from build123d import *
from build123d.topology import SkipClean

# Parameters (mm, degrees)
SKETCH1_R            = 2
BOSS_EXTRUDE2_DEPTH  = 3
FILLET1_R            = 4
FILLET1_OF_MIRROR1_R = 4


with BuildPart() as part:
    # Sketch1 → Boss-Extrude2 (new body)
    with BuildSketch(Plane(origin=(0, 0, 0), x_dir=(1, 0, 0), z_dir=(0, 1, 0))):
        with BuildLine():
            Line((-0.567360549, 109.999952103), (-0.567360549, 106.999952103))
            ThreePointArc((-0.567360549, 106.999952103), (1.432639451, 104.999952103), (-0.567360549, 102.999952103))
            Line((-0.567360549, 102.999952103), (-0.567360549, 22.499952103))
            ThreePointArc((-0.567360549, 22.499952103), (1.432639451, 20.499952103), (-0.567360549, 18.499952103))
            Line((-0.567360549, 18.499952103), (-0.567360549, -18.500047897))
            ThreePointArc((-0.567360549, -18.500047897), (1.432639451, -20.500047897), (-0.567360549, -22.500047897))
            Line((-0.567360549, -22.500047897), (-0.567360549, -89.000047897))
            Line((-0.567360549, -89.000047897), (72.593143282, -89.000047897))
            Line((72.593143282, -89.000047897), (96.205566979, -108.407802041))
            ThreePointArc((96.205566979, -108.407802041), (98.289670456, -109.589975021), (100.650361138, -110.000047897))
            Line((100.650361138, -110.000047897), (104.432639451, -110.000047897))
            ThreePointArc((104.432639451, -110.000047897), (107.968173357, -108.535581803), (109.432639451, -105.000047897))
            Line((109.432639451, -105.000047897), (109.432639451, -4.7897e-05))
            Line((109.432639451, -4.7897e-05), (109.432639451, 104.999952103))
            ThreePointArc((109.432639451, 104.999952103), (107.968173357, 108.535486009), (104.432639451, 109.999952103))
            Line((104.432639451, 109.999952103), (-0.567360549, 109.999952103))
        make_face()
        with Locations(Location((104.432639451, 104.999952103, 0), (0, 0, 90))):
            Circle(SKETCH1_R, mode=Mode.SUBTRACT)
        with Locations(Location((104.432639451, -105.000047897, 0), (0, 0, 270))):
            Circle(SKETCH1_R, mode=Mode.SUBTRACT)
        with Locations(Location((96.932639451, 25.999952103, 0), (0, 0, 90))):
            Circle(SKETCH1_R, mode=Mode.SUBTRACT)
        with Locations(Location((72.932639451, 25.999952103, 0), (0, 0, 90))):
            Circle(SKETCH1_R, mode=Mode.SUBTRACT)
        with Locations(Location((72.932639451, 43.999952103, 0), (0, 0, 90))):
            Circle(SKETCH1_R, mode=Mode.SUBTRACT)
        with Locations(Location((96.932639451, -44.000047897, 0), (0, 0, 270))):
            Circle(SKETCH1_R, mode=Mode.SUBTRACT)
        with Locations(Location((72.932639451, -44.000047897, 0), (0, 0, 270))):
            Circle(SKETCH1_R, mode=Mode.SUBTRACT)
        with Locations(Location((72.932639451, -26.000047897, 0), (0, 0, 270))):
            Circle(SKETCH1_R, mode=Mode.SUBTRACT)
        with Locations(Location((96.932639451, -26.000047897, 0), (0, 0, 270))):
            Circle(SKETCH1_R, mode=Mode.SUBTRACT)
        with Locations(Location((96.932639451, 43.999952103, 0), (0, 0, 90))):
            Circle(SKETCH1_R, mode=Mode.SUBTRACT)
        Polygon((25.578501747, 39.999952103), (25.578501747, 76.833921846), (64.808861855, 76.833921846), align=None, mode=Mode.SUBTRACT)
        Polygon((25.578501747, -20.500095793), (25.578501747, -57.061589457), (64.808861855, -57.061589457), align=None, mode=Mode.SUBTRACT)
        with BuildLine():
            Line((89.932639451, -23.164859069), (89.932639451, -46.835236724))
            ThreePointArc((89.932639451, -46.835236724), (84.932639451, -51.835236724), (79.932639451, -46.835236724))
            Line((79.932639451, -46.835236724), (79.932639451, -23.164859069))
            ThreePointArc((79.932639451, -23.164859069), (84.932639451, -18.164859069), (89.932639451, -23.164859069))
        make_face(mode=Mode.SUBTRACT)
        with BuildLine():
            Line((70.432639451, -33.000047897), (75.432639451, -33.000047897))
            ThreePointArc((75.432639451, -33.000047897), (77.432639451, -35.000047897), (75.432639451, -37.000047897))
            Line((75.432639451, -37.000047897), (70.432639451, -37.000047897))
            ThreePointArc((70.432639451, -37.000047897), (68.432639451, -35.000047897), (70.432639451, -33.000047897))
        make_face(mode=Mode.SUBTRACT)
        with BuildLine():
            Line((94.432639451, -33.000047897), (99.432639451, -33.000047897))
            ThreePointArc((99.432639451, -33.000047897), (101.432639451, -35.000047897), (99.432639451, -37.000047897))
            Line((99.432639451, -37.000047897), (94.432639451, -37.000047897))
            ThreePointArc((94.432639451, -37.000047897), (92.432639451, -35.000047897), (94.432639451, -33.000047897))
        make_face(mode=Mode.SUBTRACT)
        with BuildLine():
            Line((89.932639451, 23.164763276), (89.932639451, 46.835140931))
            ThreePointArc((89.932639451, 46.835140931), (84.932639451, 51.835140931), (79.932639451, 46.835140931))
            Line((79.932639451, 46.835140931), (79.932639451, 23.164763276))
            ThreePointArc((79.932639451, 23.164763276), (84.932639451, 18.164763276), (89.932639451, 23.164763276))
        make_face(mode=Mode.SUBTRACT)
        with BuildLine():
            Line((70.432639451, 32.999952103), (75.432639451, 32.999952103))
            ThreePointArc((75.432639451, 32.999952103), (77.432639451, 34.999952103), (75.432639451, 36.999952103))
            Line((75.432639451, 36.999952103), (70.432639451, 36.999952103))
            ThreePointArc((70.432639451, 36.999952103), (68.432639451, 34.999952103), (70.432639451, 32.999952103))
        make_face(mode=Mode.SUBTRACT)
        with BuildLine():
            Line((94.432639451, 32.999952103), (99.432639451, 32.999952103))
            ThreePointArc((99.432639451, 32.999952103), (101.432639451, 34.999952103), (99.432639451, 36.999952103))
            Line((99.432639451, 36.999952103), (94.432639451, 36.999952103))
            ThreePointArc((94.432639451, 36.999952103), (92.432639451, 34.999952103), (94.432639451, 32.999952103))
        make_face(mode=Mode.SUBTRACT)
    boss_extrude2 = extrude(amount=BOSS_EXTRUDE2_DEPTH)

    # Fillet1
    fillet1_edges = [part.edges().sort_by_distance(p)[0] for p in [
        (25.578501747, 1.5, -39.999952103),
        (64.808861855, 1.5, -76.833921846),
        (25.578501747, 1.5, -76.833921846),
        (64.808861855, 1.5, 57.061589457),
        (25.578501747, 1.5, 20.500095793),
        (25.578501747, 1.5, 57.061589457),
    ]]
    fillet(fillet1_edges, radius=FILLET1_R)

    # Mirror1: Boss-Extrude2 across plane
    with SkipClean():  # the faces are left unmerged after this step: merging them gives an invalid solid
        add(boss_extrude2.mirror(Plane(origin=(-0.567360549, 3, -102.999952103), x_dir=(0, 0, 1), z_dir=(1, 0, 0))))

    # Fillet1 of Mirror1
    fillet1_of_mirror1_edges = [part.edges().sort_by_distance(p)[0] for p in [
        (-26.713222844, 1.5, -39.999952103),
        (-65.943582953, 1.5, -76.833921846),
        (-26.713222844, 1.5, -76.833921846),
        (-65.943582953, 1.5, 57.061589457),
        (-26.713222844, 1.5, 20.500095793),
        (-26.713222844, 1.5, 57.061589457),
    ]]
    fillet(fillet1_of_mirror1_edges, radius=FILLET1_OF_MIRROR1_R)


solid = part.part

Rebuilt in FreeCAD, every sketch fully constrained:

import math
import FreeCAD as App
import Part
import Sketcher

V = App.Vector
Q = App.Units.Quantity


def edges_at(feature, points):
    """Names of the edges that pass closest to the given points."""
    edges = feature.Shape.Edges
    near = lambda p: min(range(len(edges)), key=lambda i: edges[i].distToShape(Part.Vertex(*p))[0])
    return sorted({f"Edge{near(p) + 1}" for p in points})

doc = App.newDocument("Part")
body = doc.addObject("PartDesign::Body", "Body")

# Sketch on XZ plane
sketch1 = doc.addObject("Sketcher::SketchObject", "Sketch")
body.addObject(sketch1)
sketch1.AttachmentSupport = (doc.XZ_Plane, [""])
sketch1.MapMode = "FlatFace"
sketch1.addGeometry(Part.LineSegment(V(-0.567361, -109.999952, 0), V(-0.567361, -106.999952, 0)), False)
sketch1.addGeometry(Part.ArcOfCircle(Part.Circle(V(-0.567361, -104.999952, 0), V(0, 0, 1), 2), math.radians(-90), math.radians(90)), False)
sketch1.addGeometry(Part.LineSegment(V(-0.567361, -102.999952, 0), V(-0.567361, -22.499952, 0)), False)
sketch1.addGeometry(Part.ArcOfCircle(Part.Circle(V(-0.567361, -20.499952, 0), V(0, 0, 1), 2), math.radians(-90), math.radians(90)), False)
sketch1.addGeometry(Part.LineSegment(V(-0.567361, -18.499952, 0), V(-0.567361, 18.500048, 0)), False)
sketch1.addGeometry(Part.ArcOfCircle(Part.Circle(V(-0.567361, 20.500048, 0), V(0, 0, 1), 2), math.radians(-90), math.radians(90)), False)
sketch1.addGeometry(Part.LineSegment(V(-0.567361, 22.500048, 0), V(-0.567361, 89.000048, 0)), False)
sketch1.addGeometry(Part.LineSegment(V(-0.567361, 89.000048, 0), V(72.593143, 89.000048, 0)), False)
sketch1.addGeometry(Part.LineSegment(V(72.593143, 89.000048, 0), V(96.205567, 108.407802, 0)), False)
sketch1.addGeometry(Part.ArcOfCircle(Part.Circle(V(100.650361, 103.000048, 0), V(0, 0, 1), 7), math.radians(90), math.radians(129.417804)), False)
sketch1.addGeometry(Part.LineSegment(V(100.650361, 110.000048, 0), V(104.432639, 110.000048, 0)), False)
sketch1.addGeometry(Part.ArcOfCircle(Part.Circle(V(104.432639, 105.000048, 0), V(0, 0, 1), 5), math.radians(0), math.radians(90)), False)
sketch1.addGeometry(Part.LineSegment(V(109.432639, 105.000048, 0), V(109.432639, -104.999952, 0)), False)
sketch1.addGeometry(Part.ArcOfCircle(Part.Circle(V(104.432639, -104.999952, 0), V(0, 0, 1), 5), math.radians(-90), math.radians(0)), False)
sketch1.addGeometry(Part.LineSegment(V(104.432639, -109.999952, 0), V(-0.567361, -109.999952, 0)), False)
sketch1.addGeometry(Part.LineSegment(V(25.578502, 57.061589, 0), V(25.578502, 20.500096, 0)), False)
sketch1.addGeometry(Part.LineSegment(V(25.578502, 20.500096, 0), V(64.808862, 57.061589, 0)), False)
sketch1.addGeometry(Part.LineSegment(V(64.808862, 57.061589, 0), V(25.578502, 57.061589, 0)), False)
sketch1.addGeometry(Part.Circle(V(104.432639, 105.000048, 0), V(0, 0, 1), 2), False)
sketch1.addGeometry(Part.Circle(V(72.932639, 44.000048, 0), V(0, 0, 1), 2), False)
sketch1.addGeometry(Part.ArcOfCircle(Part.Circle(V(70.432639, 35.000048, 0), V(0, 0, 1), 2), math.radians(90), math.radians(270)), False)
sketch1.addGeometry(Part.LineSegment(V(70.432639, 33.000048, 0), V(75.432639, 33.000048, 0)), False)
sketch1.addGeometry(Part.ArcOfCircle(Part.Circle(V(75.432639, 35.000048, 0), V(0, 0, 1), 2), math.radians(-90), math.radians(90)), False)
sketch1.addGeometry(Part.LineSegment(V(75.432639, 37.000048, 0), V(70.432639, 37.000048, 0)), False)
sketch1.addGeometry(Part.ArcOfCircle(Part.Circle(V(84.932639, 23.164859, 0), V(0, 0, 1), 5), math.radians(180), math.radians(360)), False)
sketch1.addGeometry(Part.LineSegment(V(89.932639, 23.164859, 0), V(89.932639, 46.835237, 0)), False)
sketch1.addGeometry(Part.ArcOfCircle(Part.Circle(V(84.932639, 46.835237, 0), V(0, 0, 1), 5), math.radians(0), math.radians(180)), False)
sketch1.addGeometry(Part.LineSegment(V(79.932639, 46.835237, 0), V(79.932639, 23.164859, 0)), False)
sketch1.addGeometry(Part.Circle(V(72.932639, 26.000048, 0), V(0, 0, 1), 2), False)
sketch1.addGeometry(Part.Circle(V(96.932639, 44.000048, 0), V(0, 0, 1), 2), False)
sketch1.addGeometry(Part.ArcOfCircle(Part.Circle(V(94.432639, 35.000048, 0), V(0, 0, 1), 2), math.radians(90), math.radians(270)), False)
sketch1.addGeometry(Part.LineSegment(V(94.432639, 33.000048, 0), V(99.432639, 33.000048, 0)), False)
sketch1.addGeometry(Part.ArcOfCircle(Part.Circle(V(99.432639, 35.000048, 0), V(0, 0, 1), 2), math.radians(-90), math.radians(90)), False)
sketch1.addGeometry(Part.LineSegment(V(99.432639, 37.000048, 0), V(94.432639, 37.000048, 0)), False)
sketch1.addGeometry(Part.Circle(V(96.932639, 26.000048, 0), V(0, 0, 1), 2), False)
sketch1.addGeometry(Part.LineSegment(V(64.808862, -76.833922, 0), V(25.578502, -39.999952, 0)), False)
sketch1.addGeometry(Part.LineSegment(V(25.578502, -39.999952, 0), V(25.578502, -76.833922, 0)), False)
sketch1.addGeometry(Part.LineSegment(V(25.578502, -76.833922, 0), V(64.808862, -76.833922, 0)), False)
sketch1.addGeometry(Part.Circle(V(72.932639, -25.999952, 0), V(0, 0, 1), 2), False)
sketch1.addGeometry(Part.LineSegment(V(75.432639, -32.999952, 0), V(70.432639, -32.999952, 0)), False)
sketch1.addGeometry(Part.ArcOfCircle(Part.Circle(V(70.432639, -34.999952, 0), V(0, 0, 1), 2), math.radians(90), math.radians(270)), False)
sketch1.addGeometry(Part.LineSegment(V(70.432639, -36.999952, 0), V(75.432639, -36.999952, 0)), False)
sketch1.addGeometry(Part.ArcOfCircle(Part.Circle(V(75.432639, -34.999952, 0), V(0, 0, 1), 2), math.radians(-90), math.radians(90)), False)
sketch1.addGeometry(Part.Circle(V(72.932639, -43.999952, 0), V(0, 0, 1), 2), False)
sketch1.addGeometry(Part.LineSegment(V(89.932639, -46.835141, 0), V(89.932639, -23.164763, 0)), False)
sketch1.addGeometry(Part.ArcOfCircle(Part.Circle(V(84.932639, -23.164763, 0), V(0, 0, 1), 5), math.radians(0), math.radians(180)), False)
sketch1.addGeometry(Part.LineSegment(V(79.932639, -23.164763, 0), V(79.932639, -46.835141, 0)), False)
sketch1.addGeometry(Part.ArcOfCircle(Part.Circle(V(84.932639, -46.835141, 0), V(0, 0, 1), 5), math.radians(180), math.radians(360)), False)
sketch1.addGeometry(Part.Circle(V(96.932639, -25.999952, 0), V(0, 0, 1), 2), False)
sketch1.addGeometry(Part.LineSegment(V(99.432639, -32.999952, 0), V(94.432639, -32.999952, 0)), False)
sketch1.addGeometry(Part.ArcOfCircle(Part.Circle(V(94.432639, -34.999952, 0), V(0, 0, 1), 2), math.radians(90), math.radians(270)), False)
sketch1.addGeometry(Part.LineSegment(V(94.432639, -36.999952, 0), V(99.432639, -36.999952, 0)), False)
sketch1.addGeometry(Part.ArcOfCircle(Part.Circle(V(99.432639, -34.999952, 0), V(0, 0, 1), 2), math.radians(-90), math.radians(90)), False)
sketch1.addGeometry(Part.Circle(V(96.932639, -43.999952, 0), V(0, 0, 1), 2), False)
sketch1.addGeometry(Part.Circle(V(104.432639, -104.999952, 0), V(0, 0, 1), 2), False)
sketch1.addConstraint(Sketcher.Constraint("Coincident", 0, 2, 1, 1))
sketch1.addConstraint(Sketcher.Constraint("Coincident", 1, 2, 2, 1))
sketch1.addConstraint(Sketcher.Constraint("Coincident", 2, 2, 3, 1))
sketch1.addConstraint(Sketcher.Constraint("Coincident", 3, 2, 4, 1))
sketch1.addConstraint(Sketcher.Constraint("Coincident", 4, 2, 5, 1))
sketch1.addConstraint(Sketcher.Constraint("Coincident", 5, 2, 6, 1))
sketch1.addConstraint(Sketcher.Constraint("Coincident", 6, 2, 7, 1))
sketch1.addConstraint(Sketcher.Constraint("Coincident", 7, 2, 8, 1))
sketch1.addConstraint(Sketcher.Constraint("Tangent", 8, 2, 9, 2))
sketch1.addConstraint(Sketcher.Constraint("Tangent", 9, 1, 10, 1))
sketch1.addConstraint(Sketcher.Constraint("Tangent", 10, 2, 11, 2))
sketch1.addConstraint(Sketcher.Constraint("Tangent", 11, 1, 12, 1))
sketch1.addConstraint(Sketcher.Constraint("Tangent", 12, 2, 13, 2))
sketch1.addConstraint(Sketcher.Constraint("Tangent", 13, 1, 14, 1))
sketch1.addConstraint(Sketcher.Constraint("Coincident", 14, 2, 0, 1))
sketch1.addConstraint(Sketcher.Constraint("Coincident", 15, 2, 16, 1))
sketch1.addConstraint(Sketcher.Constraint("Coincident", 16, 2, 17, 1))
sketch1.addConstraint(Sketcher.Constraint("Coincident", 17, 2, 15, 1))
sketch1.addConstraint(Sketcher.Constraint("Tangent", 20, 2, 21, 1))
sketch1.addConstraint(Sketcher.Constraint("Tangent", 21, 2, 22, 1))
sketch1.addConstraint(Sketcher.Constraint("Tangent", 22, 2, 23, 1))
sketch1.addConstraint(Sketcher.Constraint("Tangent", 23, 2, 20, 1))
sketch1.addConstraint(Sketcher.Constraint("Tangent", 24, 2, 25, 1))
sketch1.addConstraint(Sketcher.Constraint("Tangent", 25, 2, 26, 1))
sketch1.addConstraint(Sketcher.Constraint("Tangent", 26, 2, 27, 1))
sketch1.addConstraint(Sketcher.Constraint("Tangent", 27, 2, 24, 1))
sketch1.addConstraint(Sketcher.Constraint("Tangent", 30, 2, 31, 1))
sketch1.addConstraint(Sketcher.Constraint("Tangent", 31, 2, 32, 1))
sketch1.addConstraint(Sketcher.Constraint("Tangent", 32, 2, 33, 1))
sketch1.addConstraint(Sketcher.Constraint("Tangent", 33, 2, 30, 1))
sketch1.addConstraint(Sketcher.Constraint("Coincident", 35, 2, 36, 1))
sketch1.addConstraint(Sketcher.Constraint("Coincident", 36, 2, 37, 1))
sketch1.addConstraint(Sketcher.Constraint("Coincident", 37, 2, 35, 1))
sketch1.addConstraint(Sketcher.Constraint("Tangent", 39, 2, 40, 1))
sketch1.addConstraint(Sketcher.Constraint("Tangent", 40, 2, 41, 1))
sketch1.addConstraint(Sketcher.Constraint("Tangent", 41, 2, 42, 1))
sketch1.addConstraint(Sketcher.Constraint("Tangent", 42, 2, 39, 1))
sketch1.addConstraint(Sketcher.Constraint("Tangent", 44, 2, 45, 1))
sketch1.addConstraint(Sketcher.Constraint("Tangent", 45, 2, 46, 1))
sketch1.addConstraint(Sketcher.Constraint("Tangent", 46, 2, 47, 1))
sketch1.addConstraint(Sketcher.Constraint("Tangent", 47, 2, 44, 1))
sketch1.addConstraint(Sketcher.Constraint("Tangent", 49, 2, 50, 1))
sketch1.addConstraint(Sketcher.Constraint("Tangent", 50, 2, 51, 1))
sketch1.addConstraint(Sketcher.Constraint("Tangent", 51, 2, 52, 1))
sketch1.addConstraint(Sketcher.Constraint("Tangent", 52, 2, 49, 1))
sketch1.addConstraint(Sketcher.Constraint("Vertical", 0))
sketch1.addConstraint(Sketcher.Constraint("Vertical", 2))
sketch1.addConstraint(Sketcher.Constraint("Vertical", 4))
sketch1.addConstraint(Sketcher.Constraint("Vertical", 6))
sketch1.addConstraint(Sketcher.Constraint("Horizontal", 7))
sketch1.addConstraint(Sketcher.Constraint("Horizontal", 10))
sketch1.addConstraint(Sketcher.Constraint("Vertical", 12))
sketch1.addConstraint(Sketcher.Constraint("Horizontal", 14))
sketch1.addConstraint(Sketcher.Constraint("Vertical", 15))
sketch1.addConstraint(Sketcher.Constraint("Horizontal", 17))
sketch1.addConstraint(Sketcher.Constraint("Horizontal", 21))
sketch1.addConstraint(Sketcher.Constraint("Horizontal", 23))
sketch1.addConstraint(Sketcher.Constraint("Vertical", 25))
sketch1.addConstraint(Sketcher.Constraint("Vertical", 27))
sketch1.addConstraint(Sketcher.Constraint("Horizontal", 31))
sketch1.addConstraint(Sketcher.Constraint("Horizontal", 33))
sketch1.addConstraint(Sketcher.Constraint("Vertical", 36))
sketch1.addConstraint(Sketcher.Constraint("Horizontal", 37))
sketch1.addConstraint(Sketcher.Constraint("Horizontal", 39))
sketch1.addConstraint(Sketcher.Constraint("Horizontal", 41))
sketch1.addConstraint(Sketcher.Constraint("Vertical", 44))
sketch1.addConstraint(Sketcher.Constraint("Vertical", 46))
sketch1.addConstraint(Sketcher.Constraint("Horizontal", 49))
sketch1.addConstraint(Sketcher.Constraint("Horizontal", 51))
sketch1.addConstraint(Sketcher.Constraint("Coincident", 18, 3, 11, 3))
sketch1.addConstraint(Sketcher.Constraint("Coincident", 54, 3, 13, 3))
sketch1.addConstraint(Sketcher.Constraint("Equal", 1, 3))
sketch1.addConstraint(Sketcher.Constraint("Equal", 3, 5))
sketch1.addConstraint(Sketcher.Constraint("Equal", 11, 13))
sketch1.addConstraint(Sketcher.Constraint("Equal", 5, 18))
sketch1.addConstraint(Sketcher.Constraint("Equal", 18, 19))
sketch1.addConstraint(Sketcher.Constraint("Equal", 19, 20))
sketch1.addConstraint(Sketcher.Constraint("Equal", 13, 24))
sketch1.addConstraint(Sketcher.Constraint("Equal", 22, 28))
sketch1.addConstraint(Sketcher.Constraint("Equal", 28, 29))
sketch1.addConstraint(Sketcher.Constraint("Equal", 29, 30))
sketch1.addConstraint(Sketcher.Constraint("Equal", 32, 34))
sketch1.addConstraint(Sketcher.Constraint("Equal", 34, 38))
sketch1.addConstraint(Sketcher.Constraint("Equal", 38, 40))
sketch1.addConstraint(Sketcher.Constraint("Equal", 42, 43))
sketch1.addConstraint(Sketcher.Constraint("Equal", 26, 45))
sketch1.addConstraint(Sketcher.Constraint("Equal", 43, 48))
sketch1.addConstraint(Sketcher.Constraint("Equal", 48, 50))
sketch1.addConstraint(Sketcher.Constraint("Equal", 52, 53))
sketch1.addConstraint(Sketcher.Constraint("Equal", 53, 54))
sketch1.addConstraint(Sketcher.Constraint("Horizontal", 1, 3, 13, 3))
sketch1.addConstraint(Sketcher.Constraint("Horizontal", 19, 3, 29, 3))
sketch1.addConstraint(Sketcher.Constraint("Horizontal", 22, 3, 30, 3))
sketch1.addConstraint(Sketcher.Constraint("Horizontal", 28, 3, 34, 3))
sketch1.addConstraint(Sketcher.Constraint("Horizontal", 38, 3, 48, 3))
sketch1.addConstraint(Sketcher.Constraint("Horizontal", 42, 3, 50, 3))
sketch1.addConstraint(Sketcher.Constraint("Horizontal", 43, 3, 53, 3))
sketch1.addConstraint(Sketcher.Constraint("Vertical", 1, 3, 3, 3))
sketch1.addConstraint(Sketcher.Constraint("Vertical", 3, 3, 5, 3))
sketch1.addConstraint(Sketcher.Constraint("Vertical", 19, 3, 28, 3))
sketch1.addConstraint(Sketcher.Constraint("Vertical", 29, 3, 34, 3))
sketch1.addConstraint(Sketcher.Constraint("Vertical", 28, 3, 38, 3))
sketch1.addConstraint(Sketcher.Constraint("Vertical", 20, 3, 40, 3))
sketch1.addConstraint(Sketcher.Constraint("Vertical", 22, 3, 42, 3))
sketch1.addConstraint(Sketcher.Constraint("Vertical", 38, 3, 43, 3))
sketch1.addConstraint(Sketcher.Constraint("Vertical", 26, 3, 45, 3))
sketch1.addConstraint(Sketcher.Constraint("Vertical", 34, 3, 48, 3))
sketch1.addConstraint(Sketcher.Constraint("Vertical", 30, 3, 50, 3))
sketch1.addConstraint(Sketcher.Constraint("Vertical", 32, 3, 52, 3))
sketch1.addConstraint(Sketcher.Constraint("Vertical", 48, 3, 53, 3))
sketch1.addConstraint(Sketcher.Constraint("Vertical", 5, 3, 0, 2))
sketch1.addConstraint(Sketcher.Constraint("Vertical", 0, 2, 1, 2))
sketch1.addConstraint(Sketcher.Constraint("Vertical", 2, 2, 3, 2))
sketch1.addConstraint(Sketcher.Constraint("Vertical", 4, 2, 5, 2))
sketch1.addConstraint(Sketcher.Constraint("Vertical", 17, 2, 35, 2))
sketch1.addConstraint(Sketcher.Constraint("Vertical", 16, 2, 37, 2))
sketch1.addConstraint(Sketcher.Constraint("Equal", 23, 31))
sketch1.addConstraint(Sketcher.Constraint("Equal", 27, 44))
sketch1.addConstraint(Sketcher.Constraint("Diameter", 18, Q("4 mm")))
sketch1.addConstraint(Sketcher.Constraint("Radius", 9, Q("7 mm")))
sketch1.addConstraint(Sketcher.Constraint("Radius", 11, Q("5 mm")))
sketch1.addConstraint(Sketcher.Constraint("DistanceX", 14, 2, 14, 1, Q("105 mm")))
sketch1.addConstraint(Sketcher.Constraint("DistanceX", 21, 1, 21, 2, Q("5 mm")))
sketch1.addConstraint(Sketcher.Constraint("DistanceY", 4, 1, 4, 2, Q("37 mm")))
sketch1.addConstraint(Sketcher.Constraint("DistanceY", 12, 2, 12, 1, Q("210 mm")))
sketch1.addConstraint(Sketcher.Constraint("DistanceY", 2, 1, 2, 2, Q("80.5 mm")))
sketch1.addConstraint(Sketcher.Constraint("DistanceY", 6, 1, 6, 2, Q("66.5 mm")))
sketch1.addConstraint(Sketcher.Constraint("DistanceX", 10, 1, 10, 2, Q("3.782278 mm")))
sketch1.addConstraint(Sketcher.Constraint("DistanceX", 17, 2, 17, 1, Q("39.23036 mm")))
sketch1.addConstraint(Sketcher.Constraint("DistanceY", 36, 2, 36, 1, Q("36.83397 mm")))
sketch1.addConstraint(Sketcher.Constraint("DistanceX", -1, 1, 15, 2, Q("25.578502 mm")))
sketch1.addConstraint(Sketcher.Constraint("Distance", 16, Q("53.62615 mm")))
sketch1.addConstraint(Sketcher.Constraint("DistanceX", 7, 1, 7, 2, Q("73.160504 mm")))
sketch1.addConstraint(Sketcher.Constraint("DistanceY", 25, 1, 25, 2, Q("23.670378 mm")))
sketch1.addConstraint(Sketcher.Constraint("DistanceX", 1, 3, -1, 1, Q("0.567361 mm")))
sketch1.addConstraint(Sketcher.Constraint("DistanceX", -1, 1, 19, 3, Q("72.932639 mm")))
sketch1.addConstraint(Sketcher.Constraint("DistanceX", -1, 1, 20, 3, Q("70.432639 mm")))
sketch1.addConstraint(Sketcher.Constraint("DistanceX", -1, 1, 24, 3, Q("84.932639 mm")))
sketch1.addConstraint(Sketcher.Constraint("DistanceY", -1, 1, 24, 3, Q("23.164859 mm")))
sketch1.addConstraint(Sketcher.Constraint("DistanceX", -1, 1, 29, 3, Q("96.932639 mm")))
sketch1.addConstraint(Sketcher.Constraint("DistanceX", -1, 1, 30, 3, Q("94.432639 mm")))
sketch1.addConstraint(Sketcher.Constraint("DistanceY", 47, 3, -1, 1, Q("46.835141 mm")))
sketch1.addConstraint(Sketcher.Constraint("DistanceY", -1, 1, 16, 2, Q("57.061589 mm")))
sketch1.addConstraint(Sketcher.Constraint("DistanceY", 36, 2, -1, 1, Q("76.833922 mm")))
sketch1.addConstraint(Sketcher.Constraint("DistanceY", 1, 3, -1, 1, Q("104.999952 mm")))
sketch1.addConstraint(Sketcher.Constraint("DistanceY", -1, 1, 19, 3, Q("44.000048 mm")))
sketch1.addConstraint(Sketcher.Constraint("DistanceY", -1, 1, 20, 3, Q("35.000048 mm")))
sketch1.addConstraint(Sketcher.Constraint("DistanceY", -1, 1, 28, 3, Q("26.000048 mm")))
sketch1.addConstraint(Sketcher.Constraint("DistanceY", 38, 3, -1, 1, Q("25.999952 mm")))
sketch1.addConstraint(Sketcher.Constraint("DistanceY", 40, 3, -1, 1, Q("34.999952 mm")))
sketch1.addConstraint(Sketcher.Constraint("DistanceY", 43, 3, -1, 1, Q("43.999952 mm")))
pad1 = doc.addObject("PartDesign::Pad", "Pad")
body.addObject(pad1)
pad1.Profile = sketch1
pad1.Length = 3
pad1.Reversed = True
doc.recompute()

fillet = doc.addObject("PartDesign::Fillet", "Fillet")
body.addObject(fillet)
fillet.Base = (pad1, edges_at(pad1, [
    (25.579, 1.5, -40),
    (64.809, 1.5, -76.834),
    (25.579, 1.5, -76.834),
    (64.809, 1.5, 57.062),
    (25.579, 1.5, 20.5),
    (25.579, 1.5, 57.062),
]))
fillet.Radius = 4
doc.recompute()

datumplane = doc.addObject("PartDesign::Plane", "DatumPlane")
body.addObject(datumplane)
datumplane.AttachmentSupport = (doc.YZ_Plane, [""])
datumplane.MapMode = "FlatFace"
datumplane.AttachmentOffset = App.Placement(V(0, 0, -0.567361), App.Rotation())
mirrored = doc.addObject("PartDesign::Mirrored", "Mirrored")
body.addObject(mirrored)
mirrored.Originals = [pad1]
mirrored.MirrorPlane = (datumplane, [""])
body.Tip = mirrored
doc.recompute()

fillet2 = doc.addObject("PartDesign::Fillet", "Fillet001")
body.addObject(fillet2)
fillet2.Base = (mirrored, edges_at(mirrored, [
    (-26.713, 1.5, -40),
    (-65.944, 1.5, -76.834),
    (-26.713, 1.5, -76.834),
    (-65.944, 1.5, 57.062),
    (-26.713, 1.5, 20.5),
    (-26.713, 1.5, 57.062),
]))
fillet2.Radius = 4

doc.recompute()
